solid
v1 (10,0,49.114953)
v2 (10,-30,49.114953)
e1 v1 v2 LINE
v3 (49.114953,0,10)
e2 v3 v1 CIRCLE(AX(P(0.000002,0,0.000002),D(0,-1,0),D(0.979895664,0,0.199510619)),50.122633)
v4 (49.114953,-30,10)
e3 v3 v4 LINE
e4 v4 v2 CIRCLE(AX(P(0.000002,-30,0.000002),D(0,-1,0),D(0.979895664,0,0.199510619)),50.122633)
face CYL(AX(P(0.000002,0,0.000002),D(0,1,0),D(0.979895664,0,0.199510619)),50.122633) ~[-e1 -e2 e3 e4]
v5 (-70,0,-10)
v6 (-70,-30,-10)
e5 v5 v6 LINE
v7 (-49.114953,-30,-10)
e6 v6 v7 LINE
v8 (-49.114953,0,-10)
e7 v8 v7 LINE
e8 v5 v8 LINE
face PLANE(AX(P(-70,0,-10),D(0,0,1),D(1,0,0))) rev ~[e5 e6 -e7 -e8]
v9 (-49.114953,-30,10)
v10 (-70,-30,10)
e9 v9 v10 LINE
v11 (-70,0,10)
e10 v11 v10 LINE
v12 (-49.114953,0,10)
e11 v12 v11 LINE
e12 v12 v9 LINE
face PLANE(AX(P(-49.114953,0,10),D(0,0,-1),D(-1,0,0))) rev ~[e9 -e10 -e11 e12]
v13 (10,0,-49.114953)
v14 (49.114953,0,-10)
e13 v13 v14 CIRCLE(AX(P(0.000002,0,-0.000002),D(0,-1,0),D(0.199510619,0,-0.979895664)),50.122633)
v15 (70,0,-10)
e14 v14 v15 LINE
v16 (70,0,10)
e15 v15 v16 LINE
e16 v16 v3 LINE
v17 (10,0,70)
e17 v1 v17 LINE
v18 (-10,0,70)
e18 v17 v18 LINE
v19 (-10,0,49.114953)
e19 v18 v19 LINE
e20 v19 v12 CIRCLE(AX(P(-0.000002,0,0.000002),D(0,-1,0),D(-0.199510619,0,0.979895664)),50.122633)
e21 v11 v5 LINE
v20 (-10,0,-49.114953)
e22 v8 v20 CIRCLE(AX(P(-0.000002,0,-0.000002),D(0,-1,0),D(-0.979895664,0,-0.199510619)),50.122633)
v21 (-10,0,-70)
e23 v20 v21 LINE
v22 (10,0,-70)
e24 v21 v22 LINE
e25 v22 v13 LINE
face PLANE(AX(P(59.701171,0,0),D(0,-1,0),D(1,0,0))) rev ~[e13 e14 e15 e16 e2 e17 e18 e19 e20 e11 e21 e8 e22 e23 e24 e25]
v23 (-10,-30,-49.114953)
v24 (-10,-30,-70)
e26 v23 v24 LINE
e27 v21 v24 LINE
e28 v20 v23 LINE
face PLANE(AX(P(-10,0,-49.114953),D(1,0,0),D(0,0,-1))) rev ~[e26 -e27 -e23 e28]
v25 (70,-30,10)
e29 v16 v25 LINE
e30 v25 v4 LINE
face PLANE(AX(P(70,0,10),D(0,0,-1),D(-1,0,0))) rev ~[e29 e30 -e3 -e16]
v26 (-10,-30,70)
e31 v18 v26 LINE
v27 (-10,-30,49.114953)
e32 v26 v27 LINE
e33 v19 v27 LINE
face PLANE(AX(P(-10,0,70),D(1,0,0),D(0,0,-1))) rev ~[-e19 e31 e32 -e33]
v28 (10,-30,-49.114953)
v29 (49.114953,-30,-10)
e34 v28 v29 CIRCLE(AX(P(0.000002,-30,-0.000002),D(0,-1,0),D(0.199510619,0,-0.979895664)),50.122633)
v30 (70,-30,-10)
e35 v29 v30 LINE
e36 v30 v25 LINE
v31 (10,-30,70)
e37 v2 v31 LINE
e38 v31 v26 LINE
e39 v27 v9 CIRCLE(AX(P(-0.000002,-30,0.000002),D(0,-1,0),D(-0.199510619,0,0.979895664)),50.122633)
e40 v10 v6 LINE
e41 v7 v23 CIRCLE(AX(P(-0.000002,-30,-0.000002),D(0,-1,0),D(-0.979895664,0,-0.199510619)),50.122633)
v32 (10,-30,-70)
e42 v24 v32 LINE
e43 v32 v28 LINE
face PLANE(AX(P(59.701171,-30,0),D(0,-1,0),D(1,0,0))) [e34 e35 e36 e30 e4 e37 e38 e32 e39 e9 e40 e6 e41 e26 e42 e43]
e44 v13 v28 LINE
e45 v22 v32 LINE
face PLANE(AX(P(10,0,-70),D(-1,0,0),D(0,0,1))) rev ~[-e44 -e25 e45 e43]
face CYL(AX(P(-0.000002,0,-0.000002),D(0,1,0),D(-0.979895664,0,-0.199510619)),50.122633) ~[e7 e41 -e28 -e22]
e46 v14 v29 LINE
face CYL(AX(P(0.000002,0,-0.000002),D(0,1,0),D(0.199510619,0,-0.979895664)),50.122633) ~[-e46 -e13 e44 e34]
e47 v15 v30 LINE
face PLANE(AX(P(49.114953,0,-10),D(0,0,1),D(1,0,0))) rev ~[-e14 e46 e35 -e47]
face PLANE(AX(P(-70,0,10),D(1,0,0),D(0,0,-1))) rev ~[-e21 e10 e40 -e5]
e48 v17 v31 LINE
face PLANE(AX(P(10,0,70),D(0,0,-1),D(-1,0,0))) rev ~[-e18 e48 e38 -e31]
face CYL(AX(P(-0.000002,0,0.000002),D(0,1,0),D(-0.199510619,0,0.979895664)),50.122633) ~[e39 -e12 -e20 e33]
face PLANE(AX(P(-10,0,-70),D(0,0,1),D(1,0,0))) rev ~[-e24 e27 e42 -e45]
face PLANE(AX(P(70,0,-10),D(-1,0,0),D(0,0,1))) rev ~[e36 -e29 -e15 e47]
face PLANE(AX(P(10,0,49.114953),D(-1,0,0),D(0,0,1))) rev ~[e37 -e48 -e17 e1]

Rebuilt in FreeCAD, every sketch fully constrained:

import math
import FreeCAD as App
import Part
import Sketcher
Q = App.Units.Quantity

doc = App.newDocument("Part")
body = doc.addObject("PartDesign::Body", "Body")

sketch1 = body.newObject("Sketcher::SketchObject", "Sketch")
sketch1.AttachmentSupport = (doc.getObject("XZ_Plane"), [""])
sketch1.MapMode = "FlatFace"
sketch1.addGeometry(Part.LineSegment(App.Vector(70, 10, 0), App.Vector(49, 10, 0)), False)
sketch1.addGeometry(Part.ArcOfCircle(Part.Circle(App.Vector(0, 0, 0), App.Vector(0, 0, 1), 50), math.radians(12), math.radians(78)), False)
sketch1.addGeometry(Part.LineSegment(App.Vector(10, 49, 0), App.Vector(10, 70, 0)), False)
sketch1.addGeometry(Part.LineSegment(App.Vector(10, 70, 0), App.Vector(-10, 70, 0)), False)
sketch1.addGeometry(Part.LineSegment(App.Vector(-10, 70, 0), App.Vector(-10, 49, 0)), False)
sketch1.addGeometry(Part.ArcOfCircle(Part.Circle(App.Vector(0, 0, 0), App.Vector(0, 0, 1), 50), math.radians(102), math.radians(168)), False)
sketch1.addGeometry(Part.LineSegment(App.Vector(-49, 10, 0), App.Vector(-70, 10, 0)), False)
sketch1.addGeometry(Part.LineSegment(App.Vector(-70, 10, 0), App.Vector(-70, -10, 0)), False)
sketch1.addGeometry(Part.LineSegment(App.Vector(-70, -10, 0), App.Vector(-49, -10, 0)), False)
sketch1.addGeometry(Part.ArcOfCircle(Part.Circle(App.Vector(0, 0, 0), App.Vector(0, 0, 1), 50), math.radians(-168), math.radians(-102)), False)
sketch1.addGeometry(Part.LineSegment(App.Vector(-10, -49, 0), App.Vector(-10, -70, 0)), False)
sketch1.addGeometry(Part.LineSegment(App.Vector(-10, -70, 0), App.Vector(10, -70, 0)), False)
sketch1.addGeometry(Part.LineSegment(App.Vector(10, -70, 0), App.Vector(10, -49, 0)), False)
sketch1.addGeometry(Part.ArcOfCircle(Part.Circle(App.Vector(0, 0, 0), App.Vector(0, 0, 1), 50), math.radians(-78), math.radians(-12)), False)
sketch1.addGeometry(Part.LineSegment(App.Vector(49, -10, 0), App.Vector(70, -10, 0)), False)
sketch1.addGeometry(Part.LineSegment(App.Vector(70, -10, 0), App.Vector(70, 10, 0)), False)
sketch1.addConstraint(Sketcher.Constraint("Coincident", 0, 2, 1, 1))
sketch1.addConstraint(Sketcher.Constraint("Coincident", 1, 2, 2, 1))
sketch1.addConstraint(Sketcher.Constraint("Coincident", 2, 2, 3, 1))
sketch1.addConstraint(Sketcher.Constraint("Coincident", 3, 2, 4, 1))
sketch1.addConstraint(Sketcher.Constraint("Coincident", 4, 2, 5, 1))
sketch1.addConstraint(Sketcher.Constraint("Coincident", 5, 2, 6, 1))
sketch1.addConstraint(Sketcher.Constraint("Coincident", 6, 2, 7, 1))
sketch1.addConstraint(Sketcher.Constraint("Coincident", 7, 2, 8, 1))
sketch1.addConstraint(Sketcher.Constraint("Coincident", 8, 2, 9, 1))
sketch1.addConstraint(Sketcher.Constraint("Coincident", 9, 2, 10, 1))
sketch1.addConstraint(Sketcher.Constraint("Coincident", 10, 2, 11, 1))
sketch1.addConstraint(Sketcher.Constraint("Coincident", 11, 2, 12, 1))
sketch1.addConstraint(Sketcher.Constraint("Coincident", 12, 2, 13, 1))
sketch1.addConstraint(Sketcher.Constraint("Coincident", 13, 2, 14, 1))
sketch1.addConstraint(Sketcher.Constraint("Coincident", 14, 2, 15, 1))
sketch1.addConstraint(Sketcher.Constraint("Coincident", 15, 2, 0, 1))
sketch1.addConstraint(Sketcher.Constraint("Horizontal", 0))
sketch1.addConstraint(Sketcher.Constraint("Vertical", 2))
sketch1.addConstraint(Sketcher.Constraint("Horizontal", 3))
sketch1.addConstraint(Sketcher.Constraint("Vertical", 4))
sketch1.addConstraint(Sketcher.Constraint("Horizontal", 6))
sketch1.addConstraint(Sketcher.Constraint("Vertical", 7))
sketch1.addConstraint(Sketcher.Constraint("Horizontal", 8))
sketch1.addConstraint(Sketcher.Constraint("Vertical", 10))
sketch1.addConstraint(Sketcher.Constraint("Horizontal", 11))
sketch1.addConstraint(Sketcher.Constraint("Vertical", 12))
sketch1.addConstraint(Sketcher.Constraint("Horizontal", 14))
sketch1.addConstraint(Sketcher.Constraint("Vertical", 15))
sketch1.addConstraint(Sketcher.Constraint("Coincident", 1, 3, -1, 1))
sketch1.addConstraint(Sketcher.Constraint("Coincident", 5, 3, -1, 1))
sketch1.addConstraint(Sketcher.Constraint("Coincident", 9, 3, -1, 1))
sketch1.addConstraint(Sketcher.Constraint("Coincident", 13, 3, -1, 1))
sketch1.addConstraint(Sketcher.Constraint("Equal", 1, 5))
sketch1.addConstraint(Sketcher.Constraint("Equal", 5, 9))
sketch1.addConstraint(Sketcher.Constraint("Equal", 9, 13))
sketch1.addConstraint(Sketcher.Constraint("Symmetric", 2, 2, 10, 2, -1, 1))
sketch1.addConstraint(Sketcher.Constraint("Symmetric", 6, 2, 14, 2, -1, 1))
sketch1.addConstraint(Sketcher.Constraint("Horizontal", 1, 2, 4, 2))
sketch1.addConstraint(Sketcher.Constraint("Horizontal", 0, 2, 5, 2))
sketch1.addConstraint(Sketcher.Constraint("Horizontal", 9, 2, 12, 2))
sketch1.addConstraint(Sketcher.Constraint("Horizontal", 8, 2, 13, 2))
sketch1.addConstraint(Sketcher.Constraint("Equal", 14, 2))
sketch1.addConstraint(Sketcher.Constraint("Equal", 11, 7))
sketch1.addConstraint(Sketcher.Constraint("DistanceX", 3, 2, 3, 1, Q("20 mm")))
sketch1.addConstraint(Sketcher.Constraint("DistanceY", -1, 1, 2, 2, Q("70 mm")))
sketch1.addConstraint(Sketcher.Constraint("Radius", 1, Q("50.122633 mm")))
pad1 = body.newObject("PartDesign::Pad", "Pad")
pad1.Profile = sketch1
pad1.Length = 30

doc.recompute()
